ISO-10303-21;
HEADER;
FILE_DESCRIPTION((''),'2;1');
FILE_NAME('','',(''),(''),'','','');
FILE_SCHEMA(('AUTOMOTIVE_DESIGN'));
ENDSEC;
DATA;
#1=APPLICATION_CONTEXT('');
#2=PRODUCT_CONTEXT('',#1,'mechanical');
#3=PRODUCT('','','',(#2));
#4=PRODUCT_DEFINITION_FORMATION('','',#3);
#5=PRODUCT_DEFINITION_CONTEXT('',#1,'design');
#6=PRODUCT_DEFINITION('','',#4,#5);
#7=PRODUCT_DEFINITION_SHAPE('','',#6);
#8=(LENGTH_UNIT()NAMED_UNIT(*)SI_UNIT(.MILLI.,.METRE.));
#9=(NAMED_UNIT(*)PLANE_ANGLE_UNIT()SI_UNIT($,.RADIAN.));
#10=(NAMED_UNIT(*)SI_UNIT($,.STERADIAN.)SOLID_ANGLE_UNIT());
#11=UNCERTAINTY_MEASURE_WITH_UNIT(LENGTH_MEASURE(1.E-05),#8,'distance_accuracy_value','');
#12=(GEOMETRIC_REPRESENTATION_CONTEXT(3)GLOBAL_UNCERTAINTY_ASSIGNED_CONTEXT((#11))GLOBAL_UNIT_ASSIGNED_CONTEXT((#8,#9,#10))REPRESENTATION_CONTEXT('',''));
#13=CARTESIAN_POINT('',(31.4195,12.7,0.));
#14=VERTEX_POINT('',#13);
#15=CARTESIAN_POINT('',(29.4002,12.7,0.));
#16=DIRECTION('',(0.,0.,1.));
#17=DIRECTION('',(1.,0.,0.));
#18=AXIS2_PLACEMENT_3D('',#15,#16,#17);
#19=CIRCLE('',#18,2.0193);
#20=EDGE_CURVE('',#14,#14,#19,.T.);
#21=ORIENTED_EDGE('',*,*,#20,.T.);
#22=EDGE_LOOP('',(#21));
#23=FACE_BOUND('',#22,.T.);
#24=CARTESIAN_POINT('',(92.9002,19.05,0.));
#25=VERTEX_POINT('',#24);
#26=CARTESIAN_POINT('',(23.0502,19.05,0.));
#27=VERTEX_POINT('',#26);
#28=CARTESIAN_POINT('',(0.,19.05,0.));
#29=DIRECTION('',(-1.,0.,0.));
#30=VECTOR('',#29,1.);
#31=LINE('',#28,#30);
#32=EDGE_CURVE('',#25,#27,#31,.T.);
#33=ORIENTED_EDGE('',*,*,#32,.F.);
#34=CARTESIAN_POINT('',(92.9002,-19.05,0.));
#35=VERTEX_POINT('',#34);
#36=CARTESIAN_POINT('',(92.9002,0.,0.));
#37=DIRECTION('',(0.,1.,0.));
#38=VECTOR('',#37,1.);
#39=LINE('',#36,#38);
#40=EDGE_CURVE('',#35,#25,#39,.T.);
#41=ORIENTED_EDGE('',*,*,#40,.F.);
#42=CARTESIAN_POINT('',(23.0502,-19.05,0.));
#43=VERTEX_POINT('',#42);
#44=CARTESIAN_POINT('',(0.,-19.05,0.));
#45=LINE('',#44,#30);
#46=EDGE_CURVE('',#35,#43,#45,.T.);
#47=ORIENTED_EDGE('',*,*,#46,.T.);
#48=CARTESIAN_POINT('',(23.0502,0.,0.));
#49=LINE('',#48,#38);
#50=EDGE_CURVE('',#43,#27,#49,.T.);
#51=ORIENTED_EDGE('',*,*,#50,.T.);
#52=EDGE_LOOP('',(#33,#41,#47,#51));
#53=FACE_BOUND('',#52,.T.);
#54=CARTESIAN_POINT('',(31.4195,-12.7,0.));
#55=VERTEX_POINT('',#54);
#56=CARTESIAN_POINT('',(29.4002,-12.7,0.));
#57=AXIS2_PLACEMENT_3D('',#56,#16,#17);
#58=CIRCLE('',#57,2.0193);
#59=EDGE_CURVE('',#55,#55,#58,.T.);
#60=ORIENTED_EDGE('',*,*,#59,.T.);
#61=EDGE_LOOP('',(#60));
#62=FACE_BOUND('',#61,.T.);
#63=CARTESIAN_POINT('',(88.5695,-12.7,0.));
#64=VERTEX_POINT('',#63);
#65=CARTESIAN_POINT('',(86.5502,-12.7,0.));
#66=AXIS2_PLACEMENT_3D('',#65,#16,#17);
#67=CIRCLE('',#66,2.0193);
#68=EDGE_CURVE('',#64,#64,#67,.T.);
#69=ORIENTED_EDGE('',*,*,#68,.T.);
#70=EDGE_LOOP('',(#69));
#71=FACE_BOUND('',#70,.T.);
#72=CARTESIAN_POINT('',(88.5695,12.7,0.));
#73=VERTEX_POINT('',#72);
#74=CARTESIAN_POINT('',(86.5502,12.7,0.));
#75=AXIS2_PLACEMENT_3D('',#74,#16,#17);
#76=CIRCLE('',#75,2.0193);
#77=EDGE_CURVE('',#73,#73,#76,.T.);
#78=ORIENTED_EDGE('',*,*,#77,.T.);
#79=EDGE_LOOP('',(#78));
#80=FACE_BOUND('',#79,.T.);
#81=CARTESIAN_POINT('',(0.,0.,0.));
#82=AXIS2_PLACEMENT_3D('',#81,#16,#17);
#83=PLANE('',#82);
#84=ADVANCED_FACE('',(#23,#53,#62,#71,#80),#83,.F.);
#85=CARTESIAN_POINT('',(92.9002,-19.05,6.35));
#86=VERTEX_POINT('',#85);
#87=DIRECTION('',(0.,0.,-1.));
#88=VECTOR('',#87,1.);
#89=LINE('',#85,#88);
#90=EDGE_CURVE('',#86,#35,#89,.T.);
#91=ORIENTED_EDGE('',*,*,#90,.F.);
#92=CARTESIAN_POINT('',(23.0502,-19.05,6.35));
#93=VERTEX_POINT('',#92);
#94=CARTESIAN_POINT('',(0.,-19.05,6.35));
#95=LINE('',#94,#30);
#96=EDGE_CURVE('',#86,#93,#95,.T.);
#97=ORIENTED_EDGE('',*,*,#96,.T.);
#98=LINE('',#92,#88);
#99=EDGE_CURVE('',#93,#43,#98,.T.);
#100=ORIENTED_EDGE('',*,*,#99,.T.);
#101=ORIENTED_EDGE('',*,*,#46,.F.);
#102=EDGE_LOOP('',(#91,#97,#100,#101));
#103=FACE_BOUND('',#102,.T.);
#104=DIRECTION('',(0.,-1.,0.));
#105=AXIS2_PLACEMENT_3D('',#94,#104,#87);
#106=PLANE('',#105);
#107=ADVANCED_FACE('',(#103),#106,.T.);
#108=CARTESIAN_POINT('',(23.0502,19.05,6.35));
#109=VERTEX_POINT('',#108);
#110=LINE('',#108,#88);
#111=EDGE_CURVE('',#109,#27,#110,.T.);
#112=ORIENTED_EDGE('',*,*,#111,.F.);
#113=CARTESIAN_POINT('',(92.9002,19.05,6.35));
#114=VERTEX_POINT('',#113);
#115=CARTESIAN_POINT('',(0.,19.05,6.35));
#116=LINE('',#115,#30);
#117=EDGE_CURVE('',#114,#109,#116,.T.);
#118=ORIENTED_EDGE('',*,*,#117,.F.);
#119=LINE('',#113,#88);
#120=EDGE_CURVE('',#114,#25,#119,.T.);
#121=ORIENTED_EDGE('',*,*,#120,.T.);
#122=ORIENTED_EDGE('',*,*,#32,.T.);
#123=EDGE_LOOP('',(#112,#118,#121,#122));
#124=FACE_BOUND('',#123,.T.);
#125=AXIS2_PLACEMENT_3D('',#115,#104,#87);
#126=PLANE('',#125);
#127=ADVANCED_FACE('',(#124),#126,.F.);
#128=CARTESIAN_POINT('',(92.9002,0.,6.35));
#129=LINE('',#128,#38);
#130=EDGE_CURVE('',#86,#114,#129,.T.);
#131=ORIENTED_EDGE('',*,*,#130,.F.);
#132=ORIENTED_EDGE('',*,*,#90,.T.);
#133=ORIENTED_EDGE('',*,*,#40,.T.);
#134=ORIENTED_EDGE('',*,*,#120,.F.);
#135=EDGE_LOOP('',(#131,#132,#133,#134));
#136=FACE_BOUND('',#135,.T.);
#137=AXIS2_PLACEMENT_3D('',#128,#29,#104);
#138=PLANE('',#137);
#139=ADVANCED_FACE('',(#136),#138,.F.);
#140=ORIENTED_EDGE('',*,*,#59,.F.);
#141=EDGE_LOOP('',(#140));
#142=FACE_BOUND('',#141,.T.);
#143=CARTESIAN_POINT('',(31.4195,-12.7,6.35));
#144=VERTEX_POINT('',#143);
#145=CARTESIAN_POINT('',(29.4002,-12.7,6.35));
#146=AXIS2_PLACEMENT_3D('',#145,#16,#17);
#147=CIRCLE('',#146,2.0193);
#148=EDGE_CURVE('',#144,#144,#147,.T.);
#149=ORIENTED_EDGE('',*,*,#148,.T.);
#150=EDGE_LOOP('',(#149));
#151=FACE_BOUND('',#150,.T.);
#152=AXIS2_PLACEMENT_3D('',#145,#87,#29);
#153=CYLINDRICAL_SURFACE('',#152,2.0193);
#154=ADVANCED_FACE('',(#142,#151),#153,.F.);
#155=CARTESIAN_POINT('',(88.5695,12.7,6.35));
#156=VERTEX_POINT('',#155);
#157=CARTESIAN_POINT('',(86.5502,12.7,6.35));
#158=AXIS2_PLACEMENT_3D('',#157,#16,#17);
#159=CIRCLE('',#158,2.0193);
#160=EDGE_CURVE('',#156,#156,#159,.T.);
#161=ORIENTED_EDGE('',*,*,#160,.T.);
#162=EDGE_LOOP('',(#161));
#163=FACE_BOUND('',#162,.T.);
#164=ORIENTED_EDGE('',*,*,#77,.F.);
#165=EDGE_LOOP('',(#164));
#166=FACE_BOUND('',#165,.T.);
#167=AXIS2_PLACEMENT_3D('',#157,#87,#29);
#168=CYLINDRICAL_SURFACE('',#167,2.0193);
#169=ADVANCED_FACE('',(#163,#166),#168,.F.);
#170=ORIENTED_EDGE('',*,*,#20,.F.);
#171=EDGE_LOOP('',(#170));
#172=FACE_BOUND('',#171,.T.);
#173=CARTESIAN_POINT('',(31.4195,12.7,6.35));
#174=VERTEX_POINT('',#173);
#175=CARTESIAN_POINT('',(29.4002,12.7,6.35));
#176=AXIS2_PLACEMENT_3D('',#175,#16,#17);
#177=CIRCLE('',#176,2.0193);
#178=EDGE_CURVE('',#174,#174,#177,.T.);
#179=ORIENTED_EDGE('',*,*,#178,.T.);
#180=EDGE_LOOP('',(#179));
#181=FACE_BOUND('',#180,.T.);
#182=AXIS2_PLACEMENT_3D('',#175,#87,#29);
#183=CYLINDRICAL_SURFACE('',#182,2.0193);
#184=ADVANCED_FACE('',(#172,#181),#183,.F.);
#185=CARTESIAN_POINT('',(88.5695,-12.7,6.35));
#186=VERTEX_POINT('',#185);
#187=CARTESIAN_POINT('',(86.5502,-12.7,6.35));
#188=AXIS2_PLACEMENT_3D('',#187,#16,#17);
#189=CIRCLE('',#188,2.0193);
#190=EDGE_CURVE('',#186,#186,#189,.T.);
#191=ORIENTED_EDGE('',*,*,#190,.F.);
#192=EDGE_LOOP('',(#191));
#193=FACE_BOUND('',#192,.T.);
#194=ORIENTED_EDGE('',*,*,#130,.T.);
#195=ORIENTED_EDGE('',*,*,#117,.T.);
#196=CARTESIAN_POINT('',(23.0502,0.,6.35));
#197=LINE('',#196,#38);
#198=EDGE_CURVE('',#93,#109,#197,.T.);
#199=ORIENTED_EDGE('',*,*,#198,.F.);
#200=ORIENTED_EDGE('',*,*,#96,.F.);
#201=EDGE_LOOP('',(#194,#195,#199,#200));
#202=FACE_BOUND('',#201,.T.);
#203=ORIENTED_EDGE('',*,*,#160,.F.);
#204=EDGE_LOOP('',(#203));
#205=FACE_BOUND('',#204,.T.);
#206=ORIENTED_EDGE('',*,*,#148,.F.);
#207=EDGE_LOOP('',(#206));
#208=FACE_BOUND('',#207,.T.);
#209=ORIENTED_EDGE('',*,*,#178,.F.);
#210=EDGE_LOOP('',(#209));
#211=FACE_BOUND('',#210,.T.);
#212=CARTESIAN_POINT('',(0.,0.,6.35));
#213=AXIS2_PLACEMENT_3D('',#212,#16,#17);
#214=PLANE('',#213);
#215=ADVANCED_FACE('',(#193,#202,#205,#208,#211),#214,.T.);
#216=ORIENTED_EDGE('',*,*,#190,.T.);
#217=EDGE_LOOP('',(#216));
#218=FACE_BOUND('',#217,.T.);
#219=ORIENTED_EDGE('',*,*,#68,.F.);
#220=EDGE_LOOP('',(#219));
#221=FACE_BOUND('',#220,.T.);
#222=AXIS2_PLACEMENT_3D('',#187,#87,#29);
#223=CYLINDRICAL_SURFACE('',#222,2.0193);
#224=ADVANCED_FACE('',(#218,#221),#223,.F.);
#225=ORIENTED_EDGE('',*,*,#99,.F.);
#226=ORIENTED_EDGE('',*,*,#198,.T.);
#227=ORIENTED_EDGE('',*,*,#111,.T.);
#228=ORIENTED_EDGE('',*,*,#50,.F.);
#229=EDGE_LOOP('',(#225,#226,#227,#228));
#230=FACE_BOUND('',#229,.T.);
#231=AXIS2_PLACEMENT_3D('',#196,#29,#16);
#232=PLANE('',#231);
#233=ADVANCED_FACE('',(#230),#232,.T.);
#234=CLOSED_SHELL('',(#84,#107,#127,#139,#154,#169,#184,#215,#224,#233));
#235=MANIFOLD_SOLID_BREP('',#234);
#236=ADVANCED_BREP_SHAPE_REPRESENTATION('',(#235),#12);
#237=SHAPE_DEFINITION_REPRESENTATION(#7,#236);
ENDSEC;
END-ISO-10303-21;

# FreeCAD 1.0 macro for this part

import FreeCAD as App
import Part
import Sketcher
Q = App.Units.Quantity


def add_polygon(sketch, points):
    """Adds a closed chain of lines whose ends are joined by coincident constraints."""
    first, n = sketch.GeometryCount, len(points)
    for a, b in zip(points, points[1:] + points[:1]):
        sketch.addGeometry(Part.LineSegment(App.Vector(*a, 0), App.Vector(*b, 0)), False)
    for i in range(n):
        sketch.addConstraint(Sketcher.Constraint("Coincident", first + i, 2, first + (i + 1) % n, 1))

doc = App.newDocument("Part")
body = doc.addObject("PartDesign::Body", "Body")

# Sketch on XY plane
sketch1 = body.newObject("Sketcher::SketchObject", "Sketch")
sketch1.AttachmentSupport = (doc.getObject("XY_Plane"), [""])
sketch1.MapMode = "FlatFace"
add_polygon(sketch1, [(23.1, 19.1), (23.1, -19.1), (92.9, -19.1), (92.9, 19.1)])  # lines 0-3
sketch1.addGeometry(Part.Circle(App.Vector(29.4, -12.7, 0), App.Vector(0, 0, 1), 2), False)  # 4
sketch1.addGeometry(Part.Circle(App.Vector(86.6, -12.7, 0), App.Vector(0, 0, 1), 2), False)  # 5
sketch1.addGeometry(Part.Circle(App.Vector(29.4, 12.7, 0), App.Vector(0, 0, 1), 2), False)  # 6
sketch1.addGeometry(Part.Circle(App.Vector(86.6, 12.7, 0), App.Vector(0, 0, 1), 2), False)  # 7
sketch1.addConstraint([
    Sketcher.Constraint("Vertical", 0),
    Sketcher.Constraint("Horizontal", 1),
    Sketcher.Constraint("Vertical", 2),
    Sketcher.Constraint("Horizontal", 3),
    Sketcher.Constraint("Equal", 4, 5),
    Sketcher.Constraint("Equal", 5, 6),
    Sketcher.Constraint("Equal", 6, 7),
    Sketcher.Constraint("Symmetric", 4, 3, 6, 3, -1),
    Sketcher.Constraint("Symmetric", 5, 3, 7, 3, -1),
    Sketcher.Constraint("Horizontal", 4, 3, 5, 3),
    Sketcher.Constraint("Diameter", 4, Q("0.159 in")),
    Sketcher.Constraint("DistanceY", 0, 2, 0, 1, Q("1.5 in")),
    Sketcher.Constraint("DistanceY", 4, 3, 6, 3, Q("1 in")),
    Sketcher.Constraint("DistanceX", 1, 1, 1, 2, Q("2.75 in")),
    Sketcher.Constraint("DistanceX", 0, 2, 5, 3, Q("2.5 in")),
    Sketcher.Constraint("DistanceX", 4, 3, 1, 2, Q("2.5 in")),
    Sketcher.Constraint("DistanceY", 0, 2, -1, 1, Q("0.75 in")),
    Sketcher.Constraint("DistanceX", -1, 1, 4, 3, 29.4002),
])
pad1 = body.newObject("PartDesign::Pad", "Pad")
pad1.Profile = sketch1
pad1.Length = Q("0.25 in")

doc.recompute()
